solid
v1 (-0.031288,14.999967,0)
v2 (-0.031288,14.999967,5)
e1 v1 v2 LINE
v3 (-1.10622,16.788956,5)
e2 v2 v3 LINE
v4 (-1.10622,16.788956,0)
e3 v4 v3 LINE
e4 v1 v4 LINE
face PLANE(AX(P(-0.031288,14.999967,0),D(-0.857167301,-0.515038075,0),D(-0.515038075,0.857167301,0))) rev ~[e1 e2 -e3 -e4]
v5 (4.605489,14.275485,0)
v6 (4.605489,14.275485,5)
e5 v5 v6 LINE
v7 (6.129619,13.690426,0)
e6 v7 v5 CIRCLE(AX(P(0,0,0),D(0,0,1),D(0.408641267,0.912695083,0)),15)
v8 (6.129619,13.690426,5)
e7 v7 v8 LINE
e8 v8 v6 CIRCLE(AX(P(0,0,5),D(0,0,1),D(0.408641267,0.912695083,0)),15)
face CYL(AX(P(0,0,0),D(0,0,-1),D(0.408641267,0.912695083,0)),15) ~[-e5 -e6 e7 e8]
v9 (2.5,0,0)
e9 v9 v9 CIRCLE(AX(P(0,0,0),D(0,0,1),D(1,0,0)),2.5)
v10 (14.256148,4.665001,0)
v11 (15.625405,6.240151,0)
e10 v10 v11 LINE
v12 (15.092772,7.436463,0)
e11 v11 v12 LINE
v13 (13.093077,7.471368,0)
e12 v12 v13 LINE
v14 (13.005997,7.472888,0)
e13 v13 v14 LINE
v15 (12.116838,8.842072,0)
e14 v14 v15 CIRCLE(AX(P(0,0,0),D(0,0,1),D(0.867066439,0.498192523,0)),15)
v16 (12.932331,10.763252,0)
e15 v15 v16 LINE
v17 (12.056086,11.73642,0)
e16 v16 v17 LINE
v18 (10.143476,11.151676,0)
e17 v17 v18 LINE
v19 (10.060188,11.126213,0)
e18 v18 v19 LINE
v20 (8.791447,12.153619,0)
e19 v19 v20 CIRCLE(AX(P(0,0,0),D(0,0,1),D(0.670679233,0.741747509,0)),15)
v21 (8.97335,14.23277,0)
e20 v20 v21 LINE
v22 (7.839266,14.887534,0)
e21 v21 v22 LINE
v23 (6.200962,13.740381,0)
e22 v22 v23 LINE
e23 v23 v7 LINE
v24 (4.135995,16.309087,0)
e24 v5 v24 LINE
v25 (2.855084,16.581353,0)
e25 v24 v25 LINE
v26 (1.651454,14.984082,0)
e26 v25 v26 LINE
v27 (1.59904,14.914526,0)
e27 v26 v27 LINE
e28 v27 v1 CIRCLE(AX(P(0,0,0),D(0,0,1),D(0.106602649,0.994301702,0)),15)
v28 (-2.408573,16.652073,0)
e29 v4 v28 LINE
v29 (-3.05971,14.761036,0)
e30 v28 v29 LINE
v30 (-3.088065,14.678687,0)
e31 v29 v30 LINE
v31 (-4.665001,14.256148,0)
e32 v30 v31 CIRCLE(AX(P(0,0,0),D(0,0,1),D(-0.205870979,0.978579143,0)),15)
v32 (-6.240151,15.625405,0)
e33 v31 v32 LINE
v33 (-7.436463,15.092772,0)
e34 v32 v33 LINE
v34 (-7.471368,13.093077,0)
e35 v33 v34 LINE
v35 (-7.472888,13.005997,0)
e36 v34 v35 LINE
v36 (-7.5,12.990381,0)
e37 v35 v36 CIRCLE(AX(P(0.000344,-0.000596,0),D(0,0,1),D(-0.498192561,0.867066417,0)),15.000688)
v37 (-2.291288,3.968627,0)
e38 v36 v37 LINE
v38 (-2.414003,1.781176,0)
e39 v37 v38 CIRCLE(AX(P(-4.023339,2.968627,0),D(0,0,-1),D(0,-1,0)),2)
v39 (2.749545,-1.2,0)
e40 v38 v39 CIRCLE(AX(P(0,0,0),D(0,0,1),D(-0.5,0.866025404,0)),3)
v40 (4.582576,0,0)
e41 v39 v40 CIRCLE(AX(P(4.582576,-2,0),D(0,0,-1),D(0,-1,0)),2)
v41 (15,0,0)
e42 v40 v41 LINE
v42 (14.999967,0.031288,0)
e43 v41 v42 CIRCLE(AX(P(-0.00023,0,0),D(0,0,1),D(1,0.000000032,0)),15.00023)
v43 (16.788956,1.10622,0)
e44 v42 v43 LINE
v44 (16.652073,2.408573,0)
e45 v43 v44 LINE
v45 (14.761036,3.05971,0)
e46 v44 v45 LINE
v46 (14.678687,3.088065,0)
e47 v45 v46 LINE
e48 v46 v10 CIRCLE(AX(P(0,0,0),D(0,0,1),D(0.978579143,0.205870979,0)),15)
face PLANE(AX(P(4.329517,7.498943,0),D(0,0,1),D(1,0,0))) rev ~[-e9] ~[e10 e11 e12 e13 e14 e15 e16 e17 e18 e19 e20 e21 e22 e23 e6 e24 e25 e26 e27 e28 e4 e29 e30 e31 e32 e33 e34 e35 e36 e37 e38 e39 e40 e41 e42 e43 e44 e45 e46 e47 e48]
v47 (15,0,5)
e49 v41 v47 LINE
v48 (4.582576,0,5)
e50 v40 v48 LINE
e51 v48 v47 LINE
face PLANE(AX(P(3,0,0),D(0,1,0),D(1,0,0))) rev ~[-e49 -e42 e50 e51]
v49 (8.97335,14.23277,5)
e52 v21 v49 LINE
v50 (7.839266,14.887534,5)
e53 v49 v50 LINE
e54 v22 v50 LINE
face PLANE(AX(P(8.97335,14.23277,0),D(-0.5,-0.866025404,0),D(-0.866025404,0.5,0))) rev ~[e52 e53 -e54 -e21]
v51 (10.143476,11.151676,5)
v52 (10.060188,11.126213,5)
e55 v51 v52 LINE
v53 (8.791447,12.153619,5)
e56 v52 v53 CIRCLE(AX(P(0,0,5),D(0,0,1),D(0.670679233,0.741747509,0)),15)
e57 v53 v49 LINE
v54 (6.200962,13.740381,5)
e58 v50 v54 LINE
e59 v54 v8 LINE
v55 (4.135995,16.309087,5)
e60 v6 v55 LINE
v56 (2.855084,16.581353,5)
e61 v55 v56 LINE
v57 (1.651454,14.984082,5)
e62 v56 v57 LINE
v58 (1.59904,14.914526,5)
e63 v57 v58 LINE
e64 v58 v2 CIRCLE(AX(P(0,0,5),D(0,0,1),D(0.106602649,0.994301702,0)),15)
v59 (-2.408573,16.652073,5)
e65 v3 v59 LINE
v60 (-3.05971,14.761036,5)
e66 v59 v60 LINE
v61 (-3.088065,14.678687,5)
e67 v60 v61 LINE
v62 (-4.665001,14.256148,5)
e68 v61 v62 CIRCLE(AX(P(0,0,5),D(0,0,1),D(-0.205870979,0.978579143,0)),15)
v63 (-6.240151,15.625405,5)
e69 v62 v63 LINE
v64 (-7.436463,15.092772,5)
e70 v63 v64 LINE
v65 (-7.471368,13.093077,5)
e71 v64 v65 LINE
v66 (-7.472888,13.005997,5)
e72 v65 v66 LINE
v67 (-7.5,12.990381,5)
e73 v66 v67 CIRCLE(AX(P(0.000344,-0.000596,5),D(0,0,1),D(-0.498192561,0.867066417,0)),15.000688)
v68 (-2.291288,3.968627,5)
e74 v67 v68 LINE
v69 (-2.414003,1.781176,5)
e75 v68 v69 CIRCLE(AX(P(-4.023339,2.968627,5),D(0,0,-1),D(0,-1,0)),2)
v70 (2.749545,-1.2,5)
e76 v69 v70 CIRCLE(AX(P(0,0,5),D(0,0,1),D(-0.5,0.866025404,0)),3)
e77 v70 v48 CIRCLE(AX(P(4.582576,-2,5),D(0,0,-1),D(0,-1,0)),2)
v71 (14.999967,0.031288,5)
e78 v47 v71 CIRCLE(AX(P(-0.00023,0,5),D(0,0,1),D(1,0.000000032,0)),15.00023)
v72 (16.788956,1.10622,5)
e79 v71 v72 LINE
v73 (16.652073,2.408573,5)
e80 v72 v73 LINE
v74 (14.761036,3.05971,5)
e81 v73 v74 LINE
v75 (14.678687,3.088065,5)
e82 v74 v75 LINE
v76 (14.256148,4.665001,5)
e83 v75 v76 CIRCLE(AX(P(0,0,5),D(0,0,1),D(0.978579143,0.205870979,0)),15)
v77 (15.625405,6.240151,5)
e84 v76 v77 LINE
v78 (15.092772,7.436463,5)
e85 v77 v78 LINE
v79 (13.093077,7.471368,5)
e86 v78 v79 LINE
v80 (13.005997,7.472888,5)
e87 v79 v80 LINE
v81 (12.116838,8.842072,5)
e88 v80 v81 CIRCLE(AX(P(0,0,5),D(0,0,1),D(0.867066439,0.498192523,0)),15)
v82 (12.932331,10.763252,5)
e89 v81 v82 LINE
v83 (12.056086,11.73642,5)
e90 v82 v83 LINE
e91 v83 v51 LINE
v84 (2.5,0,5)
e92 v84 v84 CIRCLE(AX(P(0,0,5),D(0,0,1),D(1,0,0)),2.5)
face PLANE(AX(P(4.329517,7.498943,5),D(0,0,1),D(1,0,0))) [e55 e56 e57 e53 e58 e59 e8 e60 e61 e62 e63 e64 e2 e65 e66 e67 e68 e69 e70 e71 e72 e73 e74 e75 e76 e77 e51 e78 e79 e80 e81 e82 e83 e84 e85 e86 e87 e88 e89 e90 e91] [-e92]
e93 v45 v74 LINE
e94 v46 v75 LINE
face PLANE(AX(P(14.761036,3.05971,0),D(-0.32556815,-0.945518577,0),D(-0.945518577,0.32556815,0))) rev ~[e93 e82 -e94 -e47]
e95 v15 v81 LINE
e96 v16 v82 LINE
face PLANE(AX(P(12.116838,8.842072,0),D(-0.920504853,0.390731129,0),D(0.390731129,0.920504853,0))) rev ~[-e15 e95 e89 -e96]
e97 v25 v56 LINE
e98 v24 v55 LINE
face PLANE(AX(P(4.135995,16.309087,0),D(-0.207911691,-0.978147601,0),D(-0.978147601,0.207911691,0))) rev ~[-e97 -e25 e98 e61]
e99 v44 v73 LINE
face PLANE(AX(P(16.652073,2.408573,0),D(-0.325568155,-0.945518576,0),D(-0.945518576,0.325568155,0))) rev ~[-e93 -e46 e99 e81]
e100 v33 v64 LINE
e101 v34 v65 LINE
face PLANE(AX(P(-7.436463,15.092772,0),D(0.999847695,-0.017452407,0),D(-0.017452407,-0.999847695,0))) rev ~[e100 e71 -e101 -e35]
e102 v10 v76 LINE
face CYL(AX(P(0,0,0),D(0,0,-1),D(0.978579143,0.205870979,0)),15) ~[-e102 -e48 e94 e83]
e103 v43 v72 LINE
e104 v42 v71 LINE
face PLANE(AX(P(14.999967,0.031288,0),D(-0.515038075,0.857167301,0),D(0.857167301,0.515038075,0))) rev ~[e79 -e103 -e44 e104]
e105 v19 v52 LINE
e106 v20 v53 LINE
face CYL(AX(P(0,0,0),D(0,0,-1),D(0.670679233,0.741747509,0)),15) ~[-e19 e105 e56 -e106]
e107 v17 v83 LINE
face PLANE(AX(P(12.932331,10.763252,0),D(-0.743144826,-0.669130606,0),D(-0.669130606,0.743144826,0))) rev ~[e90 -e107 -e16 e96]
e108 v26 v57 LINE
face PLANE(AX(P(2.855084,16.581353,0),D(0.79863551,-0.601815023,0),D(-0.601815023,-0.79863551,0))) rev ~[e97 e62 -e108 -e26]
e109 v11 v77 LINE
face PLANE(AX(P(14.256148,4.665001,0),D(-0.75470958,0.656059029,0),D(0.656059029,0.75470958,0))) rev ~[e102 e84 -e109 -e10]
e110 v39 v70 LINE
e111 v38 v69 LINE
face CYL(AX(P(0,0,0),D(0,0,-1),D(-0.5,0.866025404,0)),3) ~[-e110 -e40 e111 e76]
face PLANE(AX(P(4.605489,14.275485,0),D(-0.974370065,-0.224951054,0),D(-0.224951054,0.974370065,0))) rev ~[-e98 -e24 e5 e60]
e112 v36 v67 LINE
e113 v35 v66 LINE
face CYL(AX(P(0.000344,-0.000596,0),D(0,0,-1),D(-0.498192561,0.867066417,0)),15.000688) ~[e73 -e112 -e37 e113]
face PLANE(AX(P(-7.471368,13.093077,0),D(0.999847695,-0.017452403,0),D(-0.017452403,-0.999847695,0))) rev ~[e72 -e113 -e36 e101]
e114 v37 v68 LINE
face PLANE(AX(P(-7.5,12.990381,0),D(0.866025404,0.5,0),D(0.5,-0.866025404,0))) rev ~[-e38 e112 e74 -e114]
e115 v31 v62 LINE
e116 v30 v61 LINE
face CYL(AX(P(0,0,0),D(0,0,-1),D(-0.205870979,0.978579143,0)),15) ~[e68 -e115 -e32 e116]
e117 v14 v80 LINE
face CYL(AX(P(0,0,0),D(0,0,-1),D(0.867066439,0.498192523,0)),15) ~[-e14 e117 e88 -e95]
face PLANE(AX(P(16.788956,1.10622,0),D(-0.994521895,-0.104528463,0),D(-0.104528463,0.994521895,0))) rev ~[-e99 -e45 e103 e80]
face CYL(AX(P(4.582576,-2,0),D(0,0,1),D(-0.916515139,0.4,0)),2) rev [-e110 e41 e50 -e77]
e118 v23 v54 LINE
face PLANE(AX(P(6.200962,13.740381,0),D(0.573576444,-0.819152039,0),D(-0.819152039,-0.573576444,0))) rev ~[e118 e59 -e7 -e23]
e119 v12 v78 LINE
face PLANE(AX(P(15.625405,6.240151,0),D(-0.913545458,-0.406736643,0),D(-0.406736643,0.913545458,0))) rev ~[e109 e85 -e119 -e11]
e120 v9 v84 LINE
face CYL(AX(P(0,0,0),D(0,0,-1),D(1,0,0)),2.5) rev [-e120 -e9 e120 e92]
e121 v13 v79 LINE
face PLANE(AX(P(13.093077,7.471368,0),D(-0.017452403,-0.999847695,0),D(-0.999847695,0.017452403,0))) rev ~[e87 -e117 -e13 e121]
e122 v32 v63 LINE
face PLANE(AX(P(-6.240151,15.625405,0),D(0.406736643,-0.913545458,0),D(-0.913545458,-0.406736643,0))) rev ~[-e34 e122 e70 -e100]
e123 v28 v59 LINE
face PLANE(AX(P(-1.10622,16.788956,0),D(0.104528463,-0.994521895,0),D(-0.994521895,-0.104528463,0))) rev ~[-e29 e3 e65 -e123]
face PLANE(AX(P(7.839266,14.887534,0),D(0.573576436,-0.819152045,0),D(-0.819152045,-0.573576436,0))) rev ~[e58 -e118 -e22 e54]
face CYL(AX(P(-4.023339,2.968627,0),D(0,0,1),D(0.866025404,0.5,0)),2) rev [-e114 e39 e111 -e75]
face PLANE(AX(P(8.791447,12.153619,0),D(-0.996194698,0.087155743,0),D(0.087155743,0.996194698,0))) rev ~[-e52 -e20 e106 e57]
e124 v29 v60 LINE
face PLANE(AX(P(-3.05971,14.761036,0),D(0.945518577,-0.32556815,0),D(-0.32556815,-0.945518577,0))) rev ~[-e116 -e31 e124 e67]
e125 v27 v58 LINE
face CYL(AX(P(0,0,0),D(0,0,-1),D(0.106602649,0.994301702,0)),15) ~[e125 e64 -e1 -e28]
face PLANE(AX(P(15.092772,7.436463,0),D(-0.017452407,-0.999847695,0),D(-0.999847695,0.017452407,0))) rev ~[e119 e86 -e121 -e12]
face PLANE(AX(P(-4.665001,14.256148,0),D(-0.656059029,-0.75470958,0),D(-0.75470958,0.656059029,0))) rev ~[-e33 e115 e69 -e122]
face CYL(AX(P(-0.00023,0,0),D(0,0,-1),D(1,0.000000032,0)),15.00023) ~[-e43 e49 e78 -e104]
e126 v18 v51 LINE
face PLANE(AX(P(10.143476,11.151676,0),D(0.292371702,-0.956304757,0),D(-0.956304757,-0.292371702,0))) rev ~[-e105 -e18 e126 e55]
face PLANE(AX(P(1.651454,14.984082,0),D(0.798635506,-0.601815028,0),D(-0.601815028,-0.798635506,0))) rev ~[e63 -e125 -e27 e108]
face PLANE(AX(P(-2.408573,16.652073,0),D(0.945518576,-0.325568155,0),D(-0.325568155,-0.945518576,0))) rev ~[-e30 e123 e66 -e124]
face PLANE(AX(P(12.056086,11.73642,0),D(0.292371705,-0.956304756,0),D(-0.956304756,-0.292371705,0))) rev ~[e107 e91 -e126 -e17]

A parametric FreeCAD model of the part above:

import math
import FreeCAD as App
import Part
import Sketcher

V = App.Vector
Q = App.Units.Quantity


def edges_at(feature, points):
    """Names of the edges that pass closest to the given points."""
    edges = feature.Shape.Edges
    near = lambda p: min(range(len(edges)), key=lambda i: edges[i].distToShape(Part.Vertex(*p))[0])
    return sorted({f"Edge{near(p) + 1}" for p in points})

doc = App.newDocument("Part")
body = doc.addObject("PartDesign::Body", "Body")

# Sketch on XY plane
sketch1 = doc.addObject("Sketcher::SketchObject", "Sketch")
body.addObject(sketch1)
sketch1.AttachmentSupport = (doc.XY_Plane, [""])
sketch1.MapMode = "FlatFace"
sketch1.addGeometry([
    Part.LineSegment(V(-7.5, 12.990381, 0), V(-1.5, 2.598076, 0)),  # 0
    Part.ArcOfCircle(Part.Circle(V(0, 0, 0), V(0, 0, 1), 3), math.radians(120), math.radians(360)),  # 1
    Part.LineSegment(V(3, 0, 0), V(15, 0, 0)),  # 2
    Part.ArcOfCircle(Part.Circle(V(-0.00023, 0, 0), V(0, 0, 1), 15.00023), math.radians(0.000002), math.radians(0.11951)),  # 3
    Part.LineSegment(V(14.999967, 0.031288, 0), V(16.788956, 1.10622, 0)),  # 4
    Part.LineSegment(V(16.788956, 1.10622, 0), V(16.652073, 2.408573, 0)),  # 5
    Part.LineSegment(V(16.652073, 2.408573, 0), V(14.761036, 3.05971, 0)),  # 6
    Part.LineSegment(V(14.761036, 3.05971, 0), V(14.678687, 3.088065, 0)),  # 7
    Part.ArcOfCircle(Part.Circle(V(0, 0, 0), V(0, 0, 1), 15), math.radians(11.88049), math.radians(18.11951)),  # 8
    Part.LineSegment(V(14.256148, 4.665001, 0), V(15.625405, 6.240151, 0)),  # 9
    Part.LineSegment(V(15.625405, 6.240151, 0), V(15.092772, 7.436463, 0)),  # 10
    Part.LineSegment(V(15.092772, 7.436463, 0), V(13.093077, 7.471368, 0)),  # 11
    Part.LineSegment(V(13.093077, 7.471368, 0), V(13.005997, 7.472888, 0)),  # 12
    Part.ArcOfCircle(Part.Circle(V(0, 0, 0), V(0, 0, 1), 15), math.radians(29.88049), math.radians(36.11951)),  # 13
    Part.LineSegment(V(12.116838, 8.842072, 0), V(12.932331, 10.763252, 0)),  # 14
    Part.LineSegment(V(12.932331, 10.763252, 0), V(12.056086, 11.73642, 0)),  # 15
    Part.LineSegment(V(12.056086, 11.73642, 0), V(10.143476, 11.151676, 0)),  # 16
    Part.LineSegment(V(10.143476, 11.151676, 0), V(10.060188, 11.126213, 0)),  # 17
    Part.ArcOfCircle(Part.Circle(V(0, 0, 0), V(0, 0, 1), 15), math.radians(47.88049), math.radians(54.11951)),  # 18
    Part.LineSegment(V(8.791447, 12.153619, 0), V(8.97335, 14.23277, 0)),  # 19
    Part.LineSegment(V(8.97335, 14.23277, 0), V(7.839266, 14.887534, 0)),  # 20
    Part.LineSegment(V(7.839266, 14.887534, 0), V(6.200962, 13.740381, 0)),  # 21
    Part.LineSegment(V(6.200962, 13.740381, 0), V(6.129619, 13.690426, 0)),  # 22
    Part.ArcOfCircle(Part.Circle(V(0, 0, 0), V(0, 0, 1), 15), math.radians(65.88049), math.radians(72.11951)),  # 23
    Part.LineSegment(V(4.605489, 14.275485, 0), V(4.135995, 16.309087, 0)),  # 24
    Part.LineSegment(V(4.135995, 16.309087, 0), V(2.855084, 16.581353, 0)),  # 25
    Part.LineSegment(V(2.855084, 16.581353, 0), V(1.651454, 14.984082, 0)),  # 26
    Part.LineSegment(V(1.651454, 14.984082, 0), V(1.59904, 14.914526, 0)),  # 27
    Part.ArcOfCircle(Part.Circle(V(0, 0, 0), V(0, 0, 1), 15), math.radians(83.88049), math.radians(90.11951)),  # 28
    Part.LineSegment(V(-0.031288, 14.999967, 0), V(-1.10622, 16.788956, 0)),  # 29
    Part.LineSegment(V(-1.10622, 16.788956, 0), V(-2.408573, 16.652073, 0)),  # 30
    Part.LineSegment(V(-2.408573, 16.652073, 0), V(-3.05971, 14.761036, 0)),  # 31
    Part.LineSegment(V(-3.05971, 14.761036, 0), V(-3.088065, 14.678687, 0)),  # 32
    Part.ArcOfCircle(Part.Circle(V(0, 0, 0), V(0, 0, 1), 15), math.radians(101.88049), math.radians(108.11951)),  # 33
    Part.LineSegment(V(-4.665001, 14.256148, 0), V(-6.240151, 15.625405, 0)),  # 34
    Part.LineSegment(V(-6.240151, 15.625405, 0), V(-7.436463, 15.092772, 0)),  # 35
    Part.LineSegment(V(-7.436463, 15.092772, 0), V(-7.471368, 13.093077, 0)),  # 36
    Part.LineSegment(V(-7.471368, 13.093077, 0), V(-7.472888, 13.005997, 0)),  # 37
    Part.ArcOfCircle(Part.Circle(V(0.000344, -0.000596, 0), V(0, 0, 1), 15.000688), math.radians(119.880493), math.radians(119.999997)),  # 38
    Part.Circle(V(0, 0, 0), V(0, 0, 1), 2.5),  # 39
], False)
sketch1.addConstraint([
    Sketcher.Constraint("Coincident", 0, 2, 1, 1),
    Sketcher.Constraint("Coincident", 1, 2, 2, 1),
    Sketcher.Constraint("Coincident", 2, 2, 3, 1),
    Sketcher.Constraint("Coincident", 3, 2, 4, 1),
    Sketcher.Constraint("Coincident", 4, 2, 5, 1),
    Sketcher.Constraint("Coincident", 5, 2, 6, 1),
    Sketcher.Constraint("Coincident", 6, 2, 7, 1),
    Sketcher.Constraint("Coincident", 7, 2, 8, 1),
    Sketcher.Constraint("Coincident", 8, 2, 9, 1),
    Sketcher.Constraint("Coincident", 9, 2, 10, 1),
    Sketcher.Constraint("Coincident", 10, 2, 11, 1),
    Sketcher.Constraint("Coincident", 11, 2, 12, 1),
    Sketcher.Constraint("Coincident", 12, 2, 13, 1),
    Sketcher.Constraint("Coincident", 13, 2, 14, 1),
    Sketcher.Constraint("Coincident", 14, 2, 15, 1),
    Sketcher.Constraint("Coincident", 15, 2, 16, 1),
    Sketcher.Constraint("Coincident", 16, 2, 17, 1),
    Sketcher.Constraint("Coincident", 17, 2, 18, 1),
    Sketcher.Constraint("Coincident", 18, 2, 19, 1),
    Sketcher.Constraint("Coincident", 19, 2, 20, 1),
    Sketcher.Constraint("Coincident", 20, 2, 21, 1),
    Sketcher.Constraint("Coincident", 21, 2, 22, 1),
    Sketcher.Constraint("Coincident", 22, 2, 23, 1),
    Sketcher.Constraint("Coincident", 23, 2, 24, 1),
    Sketcher.Constraint("Coincident", 24, 2, 25, 1),
    Sketcher.Constraint("Coincident", 25, 2, 26, 1),
    Sketcher.Constraint("Coincident", 26, 2, 27, 1),
    Sketcher.Constraint("Coincident", 27, 2, 28, 1),
    Sketcher.Constraint("Coincident", 28, 2, 29, 1),
    Sketcher.Constraint("Coincident", 29, 2, 30, 1),
    Sketcher.Constraint("Coincident", 30, 2, 31, 1),
    Sketcher.Constraint("Coincident", 31, 2, 32, 1),
    Sketcher.Constraint("Coincident", 32, 2, 33, 1),
    Sketcher.Constraint("Coincident", 33, 2, 34, 1),
    Sketcher.Constraint("Coincident", 34, 2, 35, 1),
    Sketcher.Constraint("Coincident", 35, 2, 36, 1),
    Sketcher.Constraint("Coincident", 36, 2, 37, 1),
    Sketcher.Constraint("Coincident", 37, 2, 38, 1),
    Sketcher.Constraint("Coincident", 38, 2, 0, 1),
    Sketcher.Constraint("Horizontal", 2),
    Sketcher.Constraint("Coincident", 1, 3, -1, 1),
    Sketcher.Constraint("Coincident", 8, 3, -1, 1),
    Sketcher.Constraint("Coincident", 13, 3, -1, 1),
    Sketcher.Constraint("Coincident", 18, 3, -1, 1),
    Sketcher.Constraint("Coincident", 23, 3, -1, 1),
    Sketcher.Constraint("Coincident", 28, 3, -1, 1),
    Sketcher.Constraint("Coincident", 33, 3, -1, 1),
    Sketcher.Constraint("Coincident", 39, 3, -1, 1),
    Sketcher.Constraint("Equal", 8, 13),
    Sketcher.Constraint("Equal", 13, 18),
    Sketcher.Constraint("Equal", 18, 23),
    Sketcher.Constraint("Equal", 23, 28),
    Sketcher.Constraint("Equal", 28, 33),
    Sketcher.Constraint("PointOnObject", 3, 3, -1),
    Sketcher.Constraint("PointOnObject", 1, 2, -1),
    Sketcher.Constraint("Parallel", 6, 7),
    Sketcher.Constraint("Parallel", 11, 12),
    Sketcher.Constraint("Parallel", 16, 17),
    Sketcher.Constraint("Parallel", 21, 22),
    Sketcher.Constraint("Parallel", 26, 27),
    Sketcher.Constraint("Perpendicular", 4, 29),
    Sketcher.Constraint("Perpendicular", 5, 30),
    Sketcher.Constraint("Perpendicular", 7, 31),
    Sketcher.Constraint("Parallel", 31, 32),
    Sketcher.Constraint("Perpendicular", 9, 34),
    Sketcher.Constraint("Perpendicular", 10, 35),
    Sketcher.Constraint("Perpendicular", 12, 36),
    Sketcher.Constraint("Parallel", 36, 37),
    Sketcher.Constraint("Equal", 4, 9),
    Sketcher.Constraint("Equal", 5, 10),
    Sketcher.Constraint("Equal", 6, 11),
    Sketcher.Constraint("Equal", 7, 12),
    Sketcher.Constraint("Equal", 9, 14),
    Sketcher.Constraint("Equal", 10, 15),
    Sketcher.Constraint("Equal", 11, 16),
    Sketcher.Constraint("Equal", 12, 17),
    Sketcher.Constraint("Equal", 14, 19),
    Sketcher.Constraint("Equal", 15, 20),
    Sketcher.Constraint("Equal", 16, 21),
    Sketcher.Constraint("Equal", 17, 22),
    Sketcher.Constraint("Equal", 19, 24),
    Sketcher.Constraint("Equal", 20, 25),
    Sketcher.Constraint("Equal", 21, 26),
    Sketcher.Constraint("Equal", 22, 27),
    Sketcher.Constraint("Equal", 24, 29),
    Sketcher.Constraint("Equal", 25, 30),
    Sketcher.Constraint("Equal", 26, 31),
    Sketcher.Constraint("Equal", 27, 32),
    Sketcher.Constraint("Equal", 29, 34),
    Sketcher.Constraint("Equal", 30, 35),
    Sketcher.Constraint("Equal", 31, 36),
    Sketcher.Constraint("Equal", 32, 37),
    Sketcher.Constraint("Diameter", 39, 5.0),
    Sketcher.Constraint("Radius", 1, 3.0),
    Sketcher.Constraint("Radius", 8, 15.0),
    Sketcher.Constraint("DistanceX", 2, 1, 2, 2, 12.0),
    Sketcher.Constraint("Angle", 0, Q("-60 deg")),
    Sketcher.Constraint("Angle", 4, Q("31 deg")),
    Sketcher.Constraint("Angle", 5, Q("96 deg")),
    Sketcher.Constraint("Angle", 6, Q("161 deg")),
    Sketcher.Constraint("Angle", 9, Q("49 deg")),
    Sketcher.Constraint("Angle", 10, Q("114 deg")),
    Sketcher.Constraint("Angle", 11, Q("179 deg")),
    Sketcher.Constraint("Angle", 14, Q("67 deg")),
    Sketcher.Constraint("Angle", 15, Q("132 deg")),
    Sketcher.Constraint("Angle", 16, Q("-163 deg")),
    Sketcher.Constraint("Angle", 19, Q("85 deg")),
    Sketcher.Constraint("Angle", 20, Q("150 deg")),
    Sketcher.Constraint("Angle", 21, Q("-145 deg")),
    Sketcher.Constraint("Angle", 24, Q("103 deg")),
    Sketcher.Constraint("Angle", 25, Q("168 deg")),
    Sketcher.Constraint("Angle", 26, Q("-127 deg")),
    Sketcher.Constraint("Distance", 0, 12.0),
    Sketcher.Constraint("Distance", 6, 2.0),
    Sketcher.Constraint("DistanceX", 0, 2, -1, 1, 1.5),
    Sketcher.Constraint("Radius", 3, 15.00023),
    Sketcher.Constraint("Radius", 38, 15.000688),
    Sketcher.Constraint("DistanceY", -1, 1, 8, 2, 4.665001),
    Sketcher.Constraint("DistanceY", 7, 2, 10, 2, 4.348398),
    Sketcher.Constraint("DistanceX", 10, 2, 5, 2, 1.559301),
    Sketcher.Constraint("DistanceX", 35, 2, 32, 2, 4.348398),
])
pad1 = doc.addObject("PartDesign::Pad", "Pad")
body.addObject(pad1)
pad1.Profile = sketch1
pad1.Length = 5
doc.recompute()

fillet = doc.addObject("PartDesign::Fillet", "Fillet")
body.addObject(fillet)
fillet.Base = (pad1, edges_at(pad1, [(-1.5, 2.598, 2.5)]))
fillet.Radius = 2
doc.recompute()

fillet2 = doc.addObject("PartDesign::Fillet", "Fillet001")
body.addObject(fillet2)
fillet2.Base = (fillet, edges_at(fillet, [(3, 0, 2.5)]))
fillet2.Radius = 2

doc.recompute()
